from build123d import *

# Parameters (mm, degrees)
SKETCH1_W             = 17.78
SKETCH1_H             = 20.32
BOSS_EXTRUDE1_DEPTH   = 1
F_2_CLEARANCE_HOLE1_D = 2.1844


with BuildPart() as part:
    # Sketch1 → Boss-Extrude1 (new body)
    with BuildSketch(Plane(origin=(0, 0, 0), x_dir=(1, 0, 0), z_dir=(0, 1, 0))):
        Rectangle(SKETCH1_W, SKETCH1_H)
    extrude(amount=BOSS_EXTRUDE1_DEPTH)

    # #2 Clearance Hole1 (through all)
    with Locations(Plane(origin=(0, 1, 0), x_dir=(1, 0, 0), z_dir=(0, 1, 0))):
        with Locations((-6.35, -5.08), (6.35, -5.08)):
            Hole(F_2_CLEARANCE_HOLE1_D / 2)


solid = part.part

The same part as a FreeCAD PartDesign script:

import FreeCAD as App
import Part
import Sketcher

V = App.Vector
Q = App.Units.Quantity

doc = App.newDocument("Part")
params = doc.addObject("Spreadsheet::Sheet", "Params")
for row, (alias, value) in enumerate([
    ("sketch1_width", "0.7 in"),
    ("sketch1_height", "0.8 in"),
    ("pad1_length", "1 mm"),
    ("sketch2_diameter", "0.086 in"),
    ("hole_diameter", "0.086 in"),
], start=1):
    params.set(f"A{row}", alias)
    params.set(f"B{row}", "=" + value)
    params.setAlias(f"B{row}", alias)

body = doc.addObject("PartDesign::Body", "Body")

# Sketch on XZ plane
sketch1 = doc.addObject("Sketcher::SketchObject", "Sketch")
body.addObject(sketch1)
sketch1.AttachmentSupport = (doc.XZ_Plane, [""])
sketch1.MapMode = "FlatFace"
sketch1.addGeometry(Part.LineSegment(V(-9, -10, 0), V(-9, 10, 0)), False)
sketch1.addGeometry(Part.LineSegment(V(-9, 10, 0), V(9, 10, 0)), False)
sketch1.addGeometry(Part.LineSegment(V(9, 10, 0), V(9, -10, 0)), False)
sketch1.addGeometry(Part.LineSegment(V(9, -10, 0), V(-9, -10, 0)), False)
sketch1.addConstraint(Sketcher.Constraint("Coincident", 0, 2, 1, 1))
sketch1.addConstraint(Sketcher.Constraint("Coincident", 1, 2, 2, 1))
sketch1.addConstraint(Sketcher.Constraint("Coincident", 2, 2, 3, 1))
sketch1.addConstraint(Sketcher.Constraint("Coincident", 3, 2, 0, 1))
sketch1.addConstraint(Sketcher.Constraint("Vertical", 0))
sketch1.addConstraint(Sketcher.Constraint("Horizontal", 1))
sketch1.addConstraint(Sketcher.Constraint("Vertical", 2))
sketch1.addConstraint(Sketcher.Constraint("Horizontal", 3))
sketch1.addConstraint(Sketcher.Constraint("Symmetric", 0, 2, 2, 2, -1, 1))
sketch1.addConstraint(Sketcher.Constraint("DistanceX", 1, 1, 1, 2, Q("0.7 in")))
sketch1.addConstraint(Sketcher.Constraint("DistanceY", 0, 1, 0, 2, Q("0.8 in")))
sketch1.setExpression("Constraints[9]", "Params.sketch1_width")
sketch1.setExpression("Constraints[10]", "Params.sketch1_height")
pad1 = doc.addObject("PartDesign::Pad", "Pad")
body.addObject(pad1)
pad1.Profile = sketch1
pad1.setExpression("Length", "Params.pad1_length")
pad1.Reversed = True

# Sketch on XZ plane
sketch2 = doc.addObject("Sketcher::SketchObject", "Sketch001")
body.addObject(sketch2)
sketch2.AttachmentSupport = (doc.XZ_Plane, [""])
sketch2.MapMode = "FlatFace"
sketch2.AttachmentOffset = App.Placement(V(0, 0, -1), App.Rotation())
sketch2.addGeometry(Part.Circle(V(-6.3, 5.1, 0), V(0, 0, 1), 1.1), False)
sketch2.addGeometry(Part.Circle(V(6.3, 5.1, 0), V(0, 0, 1), 1.1), False)
sketch2.addConstraint(Sketcher.Constraint("Equal", 0, 1))
sketch2.addConstraint(Sketcher.Constraint("Symmetric", 0, 3, 1, 3, -2))
sketch2.addConstraint(Sketcher.Constraint("Diameter", 0, Q("0.086 in")))
sketch2.addConstraint(Sketcher.Constraint("DistanceY", -1, 1, 0, 3, Q("0.2 in")))
sketch2.addConstraint(Sketcher.Constraint("DistanceX", 0, 3, 1, 3, Q("0.5 in")))
sketch2.setExpression("Constraints[2]", "Params.sketch2_diameter")
doc.recompute()
hole = doc.addObject("PartDesign::Hole", "Hole")
body.addObject(hole)
hole.Profile = sketch2
hole.ThreadType = "None"
hole.setExpression("Diameter", "Params.hole_diameter")
hole.DepthType = "ThroughAll"
hole.Reversed = True

doc.recompute()
